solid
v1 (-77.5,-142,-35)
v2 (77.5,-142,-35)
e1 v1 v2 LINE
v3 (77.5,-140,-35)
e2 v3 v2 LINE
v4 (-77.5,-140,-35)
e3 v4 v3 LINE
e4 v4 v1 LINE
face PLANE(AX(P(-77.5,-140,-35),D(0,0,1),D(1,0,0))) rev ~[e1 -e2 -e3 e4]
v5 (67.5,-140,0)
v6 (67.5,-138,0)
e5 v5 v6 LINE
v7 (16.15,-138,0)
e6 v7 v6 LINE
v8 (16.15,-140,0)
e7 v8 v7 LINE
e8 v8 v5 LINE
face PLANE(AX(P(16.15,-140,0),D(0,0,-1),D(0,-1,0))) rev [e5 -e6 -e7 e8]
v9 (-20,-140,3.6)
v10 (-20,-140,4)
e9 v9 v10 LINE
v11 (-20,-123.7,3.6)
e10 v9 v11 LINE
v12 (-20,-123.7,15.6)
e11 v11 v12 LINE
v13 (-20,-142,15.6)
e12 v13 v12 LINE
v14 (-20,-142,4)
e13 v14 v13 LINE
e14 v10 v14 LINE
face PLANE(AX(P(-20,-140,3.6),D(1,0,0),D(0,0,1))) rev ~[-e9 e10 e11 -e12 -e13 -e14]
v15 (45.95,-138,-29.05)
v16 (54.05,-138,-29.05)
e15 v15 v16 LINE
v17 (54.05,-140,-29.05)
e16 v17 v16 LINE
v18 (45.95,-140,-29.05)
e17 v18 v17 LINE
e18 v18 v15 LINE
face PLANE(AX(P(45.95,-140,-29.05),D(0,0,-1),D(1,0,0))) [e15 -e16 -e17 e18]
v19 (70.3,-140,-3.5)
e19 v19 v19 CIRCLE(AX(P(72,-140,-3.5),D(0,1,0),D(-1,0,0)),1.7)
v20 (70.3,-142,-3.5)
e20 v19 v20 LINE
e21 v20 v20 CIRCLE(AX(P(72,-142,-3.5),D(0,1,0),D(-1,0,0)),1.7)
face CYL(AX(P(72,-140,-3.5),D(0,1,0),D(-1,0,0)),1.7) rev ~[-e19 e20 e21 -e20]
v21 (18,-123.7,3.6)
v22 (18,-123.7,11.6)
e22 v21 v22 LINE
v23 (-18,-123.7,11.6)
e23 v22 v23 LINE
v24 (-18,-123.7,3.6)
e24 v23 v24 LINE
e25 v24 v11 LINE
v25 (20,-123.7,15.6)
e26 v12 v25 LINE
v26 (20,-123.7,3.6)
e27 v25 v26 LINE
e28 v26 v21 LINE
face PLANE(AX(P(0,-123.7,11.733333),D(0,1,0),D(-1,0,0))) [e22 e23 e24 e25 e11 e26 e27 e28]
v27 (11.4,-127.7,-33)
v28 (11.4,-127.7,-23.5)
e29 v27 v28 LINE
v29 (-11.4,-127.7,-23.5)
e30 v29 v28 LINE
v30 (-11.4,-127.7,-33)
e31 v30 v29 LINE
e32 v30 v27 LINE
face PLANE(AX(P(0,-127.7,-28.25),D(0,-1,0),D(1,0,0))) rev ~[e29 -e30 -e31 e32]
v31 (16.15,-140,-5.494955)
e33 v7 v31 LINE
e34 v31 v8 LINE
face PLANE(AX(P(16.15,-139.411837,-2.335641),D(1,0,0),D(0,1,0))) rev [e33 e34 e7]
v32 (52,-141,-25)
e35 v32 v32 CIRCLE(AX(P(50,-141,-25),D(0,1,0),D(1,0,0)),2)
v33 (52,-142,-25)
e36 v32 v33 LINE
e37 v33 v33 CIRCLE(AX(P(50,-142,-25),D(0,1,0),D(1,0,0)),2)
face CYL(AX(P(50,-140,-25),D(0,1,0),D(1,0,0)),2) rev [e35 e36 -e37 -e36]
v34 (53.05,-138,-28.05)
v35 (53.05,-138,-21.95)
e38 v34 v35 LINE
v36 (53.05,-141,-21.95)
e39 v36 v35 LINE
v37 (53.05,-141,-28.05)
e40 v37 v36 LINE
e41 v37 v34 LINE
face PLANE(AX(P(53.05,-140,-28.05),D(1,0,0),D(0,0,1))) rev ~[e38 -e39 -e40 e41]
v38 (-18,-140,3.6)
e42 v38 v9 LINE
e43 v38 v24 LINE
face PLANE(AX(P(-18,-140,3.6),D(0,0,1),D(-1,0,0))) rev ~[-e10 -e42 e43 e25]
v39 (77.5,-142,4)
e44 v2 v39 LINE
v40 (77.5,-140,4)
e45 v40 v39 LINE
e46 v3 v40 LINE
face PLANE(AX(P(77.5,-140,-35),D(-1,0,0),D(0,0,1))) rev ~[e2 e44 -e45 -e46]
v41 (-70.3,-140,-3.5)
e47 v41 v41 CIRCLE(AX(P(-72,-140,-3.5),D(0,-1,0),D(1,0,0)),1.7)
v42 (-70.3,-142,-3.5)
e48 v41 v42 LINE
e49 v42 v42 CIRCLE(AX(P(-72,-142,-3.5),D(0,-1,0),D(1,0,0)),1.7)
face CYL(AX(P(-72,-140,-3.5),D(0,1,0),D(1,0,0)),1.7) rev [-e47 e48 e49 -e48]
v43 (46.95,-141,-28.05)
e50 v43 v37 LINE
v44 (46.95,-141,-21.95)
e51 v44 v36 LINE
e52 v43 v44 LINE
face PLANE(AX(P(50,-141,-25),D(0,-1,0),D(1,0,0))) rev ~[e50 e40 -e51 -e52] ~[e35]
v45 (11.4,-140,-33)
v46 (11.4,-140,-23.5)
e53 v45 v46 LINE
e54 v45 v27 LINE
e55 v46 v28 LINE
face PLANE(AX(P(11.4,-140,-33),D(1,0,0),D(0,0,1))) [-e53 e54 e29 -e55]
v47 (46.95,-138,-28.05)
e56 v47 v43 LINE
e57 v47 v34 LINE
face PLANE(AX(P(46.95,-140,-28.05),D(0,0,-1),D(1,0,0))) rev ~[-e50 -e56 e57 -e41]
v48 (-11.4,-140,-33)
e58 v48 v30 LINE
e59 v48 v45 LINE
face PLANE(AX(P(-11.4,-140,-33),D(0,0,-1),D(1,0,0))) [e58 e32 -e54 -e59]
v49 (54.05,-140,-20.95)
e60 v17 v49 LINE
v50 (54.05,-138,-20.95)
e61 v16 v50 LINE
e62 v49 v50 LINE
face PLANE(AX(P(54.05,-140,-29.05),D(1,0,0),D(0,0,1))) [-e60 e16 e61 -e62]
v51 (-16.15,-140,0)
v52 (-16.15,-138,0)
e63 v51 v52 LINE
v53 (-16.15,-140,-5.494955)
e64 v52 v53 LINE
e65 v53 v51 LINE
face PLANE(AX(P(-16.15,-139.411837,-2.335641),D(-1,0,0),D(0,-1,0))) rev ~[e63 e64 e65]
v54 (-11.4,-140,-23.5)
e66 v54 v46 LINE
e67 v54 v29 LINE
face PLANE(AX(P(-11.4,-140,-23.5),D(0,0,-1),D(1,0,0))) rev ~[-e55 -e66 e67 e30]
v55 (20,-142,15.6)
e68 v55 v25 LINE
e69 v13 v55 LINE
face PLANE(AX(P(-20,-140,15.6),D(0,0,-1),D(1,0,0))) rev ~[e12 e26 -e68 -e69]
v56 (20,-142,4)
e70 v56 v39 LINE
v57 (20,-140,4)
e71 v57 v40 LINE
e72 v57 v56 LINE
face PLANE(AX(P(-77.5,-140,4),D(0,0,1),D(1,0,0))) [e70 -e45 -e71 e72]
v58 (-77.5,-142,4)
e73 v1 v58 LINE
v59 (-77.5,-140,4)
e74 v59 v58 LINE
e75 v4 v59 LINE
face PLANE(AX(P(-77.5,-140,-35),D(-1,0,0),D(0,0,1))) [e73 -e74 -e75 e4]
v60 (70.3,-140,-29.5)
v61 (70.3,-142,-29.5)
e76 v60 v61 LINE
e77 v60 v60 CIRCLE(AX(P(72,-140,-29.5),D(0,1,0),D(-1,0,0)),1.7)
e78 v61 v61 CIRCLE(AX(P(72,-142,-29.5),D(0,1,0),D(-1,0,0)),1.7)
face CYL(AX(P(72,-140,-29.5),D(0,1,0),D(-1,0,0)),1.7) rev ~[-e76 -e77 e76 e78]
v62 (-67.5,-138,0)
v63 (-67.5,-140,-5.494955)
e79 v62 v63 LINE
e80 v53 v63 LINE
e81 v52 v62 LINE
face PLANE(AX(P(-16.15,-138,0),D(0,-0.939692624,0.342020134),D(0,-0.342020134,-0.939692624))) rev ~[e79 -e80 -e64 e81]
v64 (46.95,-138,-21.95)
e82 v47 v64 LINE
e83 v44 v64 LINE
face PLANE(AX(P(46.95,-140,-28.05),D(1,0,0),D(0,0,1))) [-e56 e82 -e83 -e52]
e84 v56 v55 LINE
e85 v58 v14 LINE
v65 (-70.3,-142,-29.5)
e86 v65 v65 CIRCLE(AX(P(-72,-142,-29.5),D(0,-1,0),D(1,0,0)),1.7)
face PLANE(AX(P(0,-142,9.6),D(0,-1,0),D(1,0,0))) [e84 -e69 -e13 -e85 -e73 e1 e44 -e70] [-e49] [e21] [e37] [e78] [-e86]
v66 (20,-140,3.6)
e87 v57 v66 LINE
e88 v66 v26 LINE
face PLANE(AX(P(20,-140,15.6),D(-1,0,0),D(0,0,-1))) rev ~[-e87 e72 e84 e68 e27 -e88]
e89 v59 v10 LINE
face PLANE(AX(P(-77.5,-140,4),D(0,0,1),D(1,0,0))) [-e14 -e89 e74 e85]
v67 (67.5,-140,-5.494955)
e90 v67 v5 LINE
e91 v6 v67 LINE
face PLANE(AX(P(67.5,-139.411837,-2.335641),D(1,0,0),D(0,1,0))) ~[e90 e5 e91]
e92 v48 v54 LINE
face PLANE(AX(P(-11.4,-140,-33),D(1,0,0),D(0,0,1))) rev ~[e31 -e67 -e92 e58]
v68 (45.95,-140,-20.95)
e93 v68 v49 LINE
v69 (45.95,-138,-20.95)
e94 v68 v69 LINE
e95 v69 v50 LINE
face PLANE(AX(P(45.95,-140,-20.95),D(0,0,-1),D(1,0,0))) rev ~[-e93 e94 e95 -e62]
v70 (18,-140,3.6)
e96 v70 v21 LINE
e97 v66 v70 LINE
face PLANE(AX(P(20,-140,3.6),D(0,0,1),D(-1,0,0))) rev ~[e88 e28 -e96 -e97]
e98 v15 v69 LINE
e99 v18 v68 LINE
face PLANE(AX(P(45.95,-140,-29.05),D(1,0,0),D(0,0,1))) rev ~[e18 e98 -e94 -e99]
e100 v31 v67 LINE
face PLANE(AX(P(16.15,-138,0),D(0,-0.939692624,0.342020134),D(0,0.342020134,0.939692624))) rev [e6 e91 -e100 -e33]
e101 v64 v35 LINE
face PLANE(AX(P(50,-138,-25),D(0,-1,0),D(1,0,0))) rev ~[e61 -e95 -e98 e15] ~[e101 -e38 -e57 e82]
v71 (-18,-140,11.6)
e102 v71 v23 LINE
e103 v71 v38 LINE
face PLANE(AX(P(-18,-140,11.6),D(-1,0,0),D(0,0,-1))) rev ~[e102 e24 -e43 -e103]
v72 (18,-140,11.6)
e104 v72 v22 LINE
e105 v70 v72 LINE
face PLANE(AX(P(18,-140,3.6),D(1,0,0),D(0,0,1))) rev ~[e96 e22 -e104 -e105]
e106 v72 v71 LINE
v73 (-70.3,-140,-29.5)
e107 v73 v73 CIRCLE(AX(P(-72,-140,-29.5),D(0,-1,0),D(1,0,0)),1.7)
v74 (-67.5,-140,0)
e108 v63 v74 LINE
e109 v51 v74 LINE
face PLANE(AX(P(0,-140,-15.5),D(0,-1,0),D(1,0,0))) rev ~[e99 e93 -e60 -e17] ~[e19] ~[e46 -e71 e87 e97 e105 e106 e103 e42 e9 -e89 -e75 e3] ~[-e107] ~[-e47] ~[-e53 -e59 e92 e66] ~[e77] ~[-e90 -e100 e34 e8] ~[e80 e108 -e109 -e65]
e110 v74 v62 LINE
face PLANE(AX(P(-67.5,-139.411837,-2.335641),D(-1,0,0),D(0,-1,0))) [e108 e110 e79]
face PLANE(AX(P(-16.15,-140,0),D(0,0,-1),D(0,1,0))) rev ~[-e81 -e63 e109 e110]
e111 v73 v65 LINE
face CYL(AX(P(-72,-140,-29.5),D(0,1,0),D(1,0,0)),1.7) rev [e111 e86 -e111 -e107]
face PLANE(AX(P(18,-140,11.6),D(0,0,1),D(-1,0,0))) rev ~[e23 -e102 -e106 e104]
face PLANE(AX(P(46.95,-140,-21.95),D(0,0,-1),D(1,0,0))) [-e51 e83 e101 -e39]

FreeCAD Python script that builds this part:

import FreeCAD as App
import Part
import Sketcher

V = App.Vector
Q = App.Units.Quantity


def add_polygon(sketch, points):
    """Adds a closed chain of lines whose ends are joined by coincident constraints."""
    first, n = sketch.GeometryCount, len(points)
    for a, b in zip(points, points[1:] + points[:1]):
        sketch.addGeometry(Part.LineSegment(App.Vector(*a, 0), App.Vector(*b, 0)), False)
    for i in range(n):
        sketch.addConstraint(Sketcher.Constraint("Coincident", first + i, 2, first + (i + 1) % n, 1))

doc = App.newDocument("Part")
body = doc.addObject("PartDesign::Body", "Body")

# Sketch on XZ plane
sketch1 = body.newObject("Sketcher::SketchObject", "Sketch")
sketch1.AttachmentSupport = (doc.getObject("XZ_Plane"), [""])
sketch1.MapMode = "FlatFace"
add_polygon(sketch1, [(-78, 4), (-78, -35), (78, -35), (78, 4)])  # lines 0-3
sketch1.addConstraint(Sketcher.Constraint("Vertical", 0))
sketch1.addConstraint(Sketcher.Constraint("Horizontal", 1))
sketch1.addConstraint(Sketcher.Constraint("Vertical", 2))
sketch1.addConstraint(Sketcher.Constraint("Horizontal", 3))
sketch1.addConstraint(Sketcher.Constraint("DistanceX", 1, 1, 1, 2, 155.0))
sketch1.addConstraint(Sketcher.Constraint("DistanceY", 0, 2, 0, 1, 39.0))
sketch1.addConstraint(Sketcher.Constraint("DistanceY", 0, 2, -1, 1, 35.0))
sketch1.addConstraint(Sketcher.Constraint("DistanceX", 0, 2, -1, 1, 77.5))
pad1 = body.newObject("PartDesign::Pad", "Pad")
pad1.Profile = sketch1
pad1.Length = 2

# Sketch on XZ plane
sketch2 = body.newObject("Sketcher::SketchObject", "Sketch001")
sketch2.AttachmentSupport = (doc.getObject("XZ_Plane"), [""])
sketch2.MapMode = "FlatFace"
add_polygon(sketch2, [(-11, -24), (-11, -33), (11, -33), (11, -24)])  # lines 0-3
sketch2.addConstraint(Sketcher.Constraint("Vertical", 0))
sketch2.addConstraint(Sketcher.Constraint("Horizontal", 1))
sketch2.addConstraint(Sketcher.Constraint("Vertical", 2))
sketch2.addConstraint(Sketcher.Constraint("Horizontal", 3))
sketch2.addConstraint(Sketcher.Constraint("DistanceX", 1, 1, 1, 2, 22.8))
sketch2.addConstraint(Sketcher.Constraint("DistanceY", 0, 2, 0, 1, 9.5))
sketch2.addConstraint(Sketcher.Constraint("DistanceY", 0, 2, -1, 1, 33.0))
sketch2.addConstraint(Sketcher.Constraint("DistanceX", 0, 2, -1, 1, 11.4))
pad2 = body.newObject("PartDesign::Pad", "Pad001")
pad2.Profile = sketch2
pad2.Length = 12.3
pad2.Reversed = True

# Sketch on YZ plane
sketch3 = body.newObject("Sketcher::SketchObject", "Sketch002")
sketch3.AttachmentSupport = (doc.getObject("YZ_Plane"), [""])
sketch3.MapMode = "FlatFace"
sketch3.AttachmentOffset = App.Placement(V(0, 0, -16.15), App.Rotation())
add_polygon(sketch3, [(2, 0), (0, 0), (0, -5.5)])  # lines 0-2
sketch3.addConstraint(Sketcher.Constraint("Horizontal", 0))
sketch3.addConstraint(Sketcher.Constraint("Vertical", 1))
sketch3.addConstraint(Sketcher.Constraint("Coincident", 0, 2, -1, 1))
sketch3.addConstraint(Sketcher.Constraint("DistanceX", 0, 2, 0, 1, 2.0))
sketch3.addConstraint(Sketcher.Constraint("Angle", 2, Q("70.000001 deg")))
pad3 = body.newObject("PartDesign::Pad", "Pad002")
pad3.Profile = sketch3
pad3.Length = 51.35
pad3.Reversed = True
doc.recompute()

mirrored = body.newObject("PartDesign::Mirrored", "Mirrored")
mirrored.Originals = [pad3]
mirrored.MirrorPlane = (doc.getObject("YZ_Plane"), [""])
body.Tip = mirrored

# Sketch on XZ plane
sketch4 = body.newObject("Sketcher::SketchObject", "Sketch003")
sketch4.AttachmentSupport = (doc.getObject("XZ_Plane"), [""])
sketch4.MapMode = "FlatFace"
add_polygon(sketch4, [(47, -22), (47, -28), (53, -28), (53, -22)])  # lines 0-3
sketch4.addConstraint(Sketcher.Constraint("Vertical", 0))
sketch4.addConstraint(Sketcher.Constraint("Horizontal", 1))
sketch4.addConstraint(Sketcher.Constraint("Vertical", 2))
sketch4.addConstraint(Sketcher.Constraint("Horizontal", 3))
sketch4.addConstraint(Sketcher.Constraint("Equal", 3, 0))
sketch4.addConstraint(Sketcher.Constraint("DistanceX", 1, 1, 1, 2, 6.1))
sketch4.addConstraint(Sketcher.Constraint("DistanceX", -1, 1, 0, 2, 46.95))
sketch4.addConstraint(Sketcher.Constraint("DistanceY", 0, 2, -1, 1, 28.05))
pocket1 = body.newObject("PartDesign::Pocket", "Pocket")
pocket1.Profile = sketch4
pocket1.Length = 1
pocket1.Reversed = True

# Sketch on XZ plane
sketch5 = body.newObject("Sketcher::SketchObject", "Sketch004")
sketch5.AttachmentSupport = (doc.getObject("XZ_Plane"), [""])
sketch5.MapMode = "FlatFace"
sketch5.addGeometry(Part.Circle(V(50, -25, 0), V(0, 0, 1), 2), False)
sketch5.addConstraint(Sketcher.Constraint("Diameter", 0, 4.0))
sketch5.addConstraint(Sketcher.Constraint("DistanceX", -1, 1, 0, 3, 50.0))
sketch5.addConstraint(Sketcher.Constraint("DistanceY", 0, 3, -1, 1, 25.0))
pocket2 = body.newObject("PartDesign::Pocket", "Pocket001")
pocket2.Profile = sketch5
pocket2.Type = "ThroughAll"
pocket2.Reversed = True

# Sketch on XZ plane
sketch6 = body.newObject("Sketcher::SketchObject", "Sketch005")
sketch6.AttachmentSupport = (doc.getObject("XZ_Plane"), [""])
sketch6.MapMode = "FlatFace"
add_polygon(sketch6, [(-20, 16), (-20, 4), (20, 4), (20, 16)])  # lines 0-3
sketch6.addConstraint(Sketcher.Constraint("Vertical", 0))
sketch6.addConstraint(Sketcher.Constraint("Horizontal", 1))
sketch6.addConstraint(Sketcher.Constraint("Vertical", 2))
sketch6.addConstraint(Sketcher.Constraint("Horizontal", 3))
sketch6.addConstraint(Sketcher.Constraint("DistanceX", 1, 1, 1, 2, 40.0))
sketch6.addConstraint(Sketcher.Constraint("DistanceY", 0, 2, 0, 1, 12.0))
sketch6.addConstraint(Sketcher.Constraint("DistanceX", 0, 2, -1, 1, 20.0))
sketch6.addConstraint(Sketcher.Constraint("DistanceY", -1, 1, 0, 2, 3.6))
pad4 = body.newObject("PartDesign::Pad", "Pad003")
pad4.Profile = sketch6
pad4.Length = 2

# Sketch on XZ plane
sketch7 = body.newObject("Sketcher::SketchObject", "Sketch006")
sketch7.AttachmentSupport = (doc.getObject("XZ_Plane"), [""])
sketch7.MapMode = "FlatFace"
add_polygon(sketch7, [(-20, 15.6), (-20, 3.6), (-18, 3.6), (-18, 11.6), (18, 11.6), (18, 3.6), (20, 3.6), (20, 15.6)])  # lines 0-7
sketch7.addConstraint(Sketcher.Constraint("Vertical", 0))
sketch7.addConstraint(Sketcher.Constraint("Horizontal", 1))
sketch7.addConstraint(Sketcher.Constraint("Vertical", 2))
sketch7.addConstraint(Sketcher.Constraint("Horizontal", 3))
sketch7.addConstraint(Sketcher.Constraint("Vertical", 4))
sketch7.addConstraint(Sketcher.Constraint("Horizontal", 5))
sketch7.addConstraint(Sketcher.Constraint("Vertical", 6))
sketch7.addConstraint(Sketcher.Constraint("Horizontal", 7))
sketch7.addConstraint(Sketcher.Constraint("Symmetric", 1, 2, 4, 2, -2))
sketch7.addConstraint(Sketcher.Constraint("Equal", 1, 5))
sketch7.addConstraint(Sketcher.Constraint("DistanceX", 1, 1, 1, 2, 2.0))
sketch7.addConstraint(Sketcher.Constraint("DistanceX", 3, 1, 3, 2, 36.0))
sketch7.addConstraint(Sketcher.Constraint("DistanceY", 0, 2, 0, 1, 12.0))
sketch7.addConstraint(Sketcher.Constraint("DistanceY", 2, 1, 2, 2, 8.0))
sketch7.addConstraint(Sketcher.Constraint("DistanceY", -1, 1, 0, 2, 3.6))
pad5 = body.newObject("PartDesign::Pad", "Pad004")
pad5.Profile = sketch7
pad5.Length = 16.3
pad5.Reversed = True

# Sketch on XZ plane
sketch8 = body.newObject("Sketcher::SketchObject", "Sketch007")
sketch8.AttachmentSupport = (doc.getObject("XZ_Plane"), [""])
sketch8.MapMode = "FlatFace"
sketch8.addGeometry(Part.Circle(V(-72, -3.5, 0), V(0, 0, 1), 1.7), False)
sketch8.addGeometry(Part.Circle(V(-72, -29.5, 0), V(0, 0, 1), 1.7), False)
sketch8.addConstraint(Sketcher.Constraint("Equal", 0, 1))
sketch8.addConstraint(Sketcher.Constraint("Vertical", 0, 3, 1, 3))
sketch8.addConstraint(Sketcher.Constraint("Diameter", 0, 3.4))
sketch8.addConstraint(Sketcher.Constraint("DistanceX", 0, 3, -1, 1, 72.0))
sketch8.addConstraint(Sketcher.Constraint("DistanceY", 1, 3, 0, 3, 26.0))
sketch8.addConstraint(Sketcher.Constraint("DistanceY", 0, 3, -1, 1, 3.5))
pocket3 = body.newObject("PartDesign::Pocket", "Pocket002")
pocket3.Profile = sketch8
pocket3.Length = 2
pocket3.Reversed = True
doc.recompute()

mirrored2 = body.newObject("PartDesign::Mirrored", "Mirrored001")
mirrored2.Originals = [pocket3]
mirrored2.MirrorPlane = (doc.getObject("YZ_Plane"), [""])
body.Tip = mirrored2

# Sketch on XZ plane
sketch9 = body.newObject("Sketcher::SketchObject", "Sketch008")
sketch9.AttachmentSupport = (doc.getObject("XZ_Plane"), [""])
sketch9.MapMode = "FlatFace"
add_polygon(sketch9, [(46, -21), (46, -29), (54, -29), (54, -21)])  # lines 0-3
add_polygon(sketch9, [(53, -28), (47, -28), (47, -22), (53, -22)])  # lines 4-7
sketch9.addConstraint(Sketcher.Constraint("Vertical", 0))
sketch9.addConstraint(Sketcher.Constraint("Horizontal", 1))
sketch9.addConstraint(Sketcher.Constraint("Vertical", 2))
sketch9.addConstraint(Sketcher.Constraint("Horizontal", 3))
sketch9.addConstraint(Sketcher.Constraint("Horizontal", 4))
sketch9.addConstraint(Sketcher.Constraint("Vertical", 5))
sketch9.addConstraint(Sketcher.Constraint("Horizontal", 6))
sketch9.addConstraint(Sketcher.Constraint("Vertical", 7))
sketch9.addConstraint(Sketcher.Constraint("Equal", 3, 0))
sketch9.addConstraint(Sketcher.Constraint("Equal", 6, 5))
sketch9.addConstraint(Sketcher.Constraint("DistanceX", 1, 1, 1, 2, 8.1))
sketch9.addConstraint(Sketcher.Constraint("DistanceX", 4, 2, 4, 1, 6.1))
sketch9.addConstraint(Sketcher.Constraint("DistanceX", 0, 2, 4, 2, 1.0))
sketch9.addConstraint(Sketcher.Constraint("DistanceY", 0, 2, 4, 2, 1.0))
sketch9.addConstraint(Sketcher.Constraint("DistanceX", -1, 1, 0, 2, 45.95))
sketch9.addConstraint(Sketcher.Constraint("DistanceY", 0, 2, -1, 1, 29.05))
pad6 = body.newObject("PartDesign::Pad", "Pad005")
pad6.Profile = sketch9
pad6.Length = 2
pad6.Reversed = True
body2 = doc.addObject("PartDesign::Body", "Body001")
doc.recompute()

body.Placement = App.Placement(V(0, -140, 0), App.Rotation(V(0, 0, 1), 0))
boolean = body2.newObject("PartDesign::Boolean", "Boolean")
boolean.Type = "Fuse"
boolean.addObjects([body])

doc.recompute()
